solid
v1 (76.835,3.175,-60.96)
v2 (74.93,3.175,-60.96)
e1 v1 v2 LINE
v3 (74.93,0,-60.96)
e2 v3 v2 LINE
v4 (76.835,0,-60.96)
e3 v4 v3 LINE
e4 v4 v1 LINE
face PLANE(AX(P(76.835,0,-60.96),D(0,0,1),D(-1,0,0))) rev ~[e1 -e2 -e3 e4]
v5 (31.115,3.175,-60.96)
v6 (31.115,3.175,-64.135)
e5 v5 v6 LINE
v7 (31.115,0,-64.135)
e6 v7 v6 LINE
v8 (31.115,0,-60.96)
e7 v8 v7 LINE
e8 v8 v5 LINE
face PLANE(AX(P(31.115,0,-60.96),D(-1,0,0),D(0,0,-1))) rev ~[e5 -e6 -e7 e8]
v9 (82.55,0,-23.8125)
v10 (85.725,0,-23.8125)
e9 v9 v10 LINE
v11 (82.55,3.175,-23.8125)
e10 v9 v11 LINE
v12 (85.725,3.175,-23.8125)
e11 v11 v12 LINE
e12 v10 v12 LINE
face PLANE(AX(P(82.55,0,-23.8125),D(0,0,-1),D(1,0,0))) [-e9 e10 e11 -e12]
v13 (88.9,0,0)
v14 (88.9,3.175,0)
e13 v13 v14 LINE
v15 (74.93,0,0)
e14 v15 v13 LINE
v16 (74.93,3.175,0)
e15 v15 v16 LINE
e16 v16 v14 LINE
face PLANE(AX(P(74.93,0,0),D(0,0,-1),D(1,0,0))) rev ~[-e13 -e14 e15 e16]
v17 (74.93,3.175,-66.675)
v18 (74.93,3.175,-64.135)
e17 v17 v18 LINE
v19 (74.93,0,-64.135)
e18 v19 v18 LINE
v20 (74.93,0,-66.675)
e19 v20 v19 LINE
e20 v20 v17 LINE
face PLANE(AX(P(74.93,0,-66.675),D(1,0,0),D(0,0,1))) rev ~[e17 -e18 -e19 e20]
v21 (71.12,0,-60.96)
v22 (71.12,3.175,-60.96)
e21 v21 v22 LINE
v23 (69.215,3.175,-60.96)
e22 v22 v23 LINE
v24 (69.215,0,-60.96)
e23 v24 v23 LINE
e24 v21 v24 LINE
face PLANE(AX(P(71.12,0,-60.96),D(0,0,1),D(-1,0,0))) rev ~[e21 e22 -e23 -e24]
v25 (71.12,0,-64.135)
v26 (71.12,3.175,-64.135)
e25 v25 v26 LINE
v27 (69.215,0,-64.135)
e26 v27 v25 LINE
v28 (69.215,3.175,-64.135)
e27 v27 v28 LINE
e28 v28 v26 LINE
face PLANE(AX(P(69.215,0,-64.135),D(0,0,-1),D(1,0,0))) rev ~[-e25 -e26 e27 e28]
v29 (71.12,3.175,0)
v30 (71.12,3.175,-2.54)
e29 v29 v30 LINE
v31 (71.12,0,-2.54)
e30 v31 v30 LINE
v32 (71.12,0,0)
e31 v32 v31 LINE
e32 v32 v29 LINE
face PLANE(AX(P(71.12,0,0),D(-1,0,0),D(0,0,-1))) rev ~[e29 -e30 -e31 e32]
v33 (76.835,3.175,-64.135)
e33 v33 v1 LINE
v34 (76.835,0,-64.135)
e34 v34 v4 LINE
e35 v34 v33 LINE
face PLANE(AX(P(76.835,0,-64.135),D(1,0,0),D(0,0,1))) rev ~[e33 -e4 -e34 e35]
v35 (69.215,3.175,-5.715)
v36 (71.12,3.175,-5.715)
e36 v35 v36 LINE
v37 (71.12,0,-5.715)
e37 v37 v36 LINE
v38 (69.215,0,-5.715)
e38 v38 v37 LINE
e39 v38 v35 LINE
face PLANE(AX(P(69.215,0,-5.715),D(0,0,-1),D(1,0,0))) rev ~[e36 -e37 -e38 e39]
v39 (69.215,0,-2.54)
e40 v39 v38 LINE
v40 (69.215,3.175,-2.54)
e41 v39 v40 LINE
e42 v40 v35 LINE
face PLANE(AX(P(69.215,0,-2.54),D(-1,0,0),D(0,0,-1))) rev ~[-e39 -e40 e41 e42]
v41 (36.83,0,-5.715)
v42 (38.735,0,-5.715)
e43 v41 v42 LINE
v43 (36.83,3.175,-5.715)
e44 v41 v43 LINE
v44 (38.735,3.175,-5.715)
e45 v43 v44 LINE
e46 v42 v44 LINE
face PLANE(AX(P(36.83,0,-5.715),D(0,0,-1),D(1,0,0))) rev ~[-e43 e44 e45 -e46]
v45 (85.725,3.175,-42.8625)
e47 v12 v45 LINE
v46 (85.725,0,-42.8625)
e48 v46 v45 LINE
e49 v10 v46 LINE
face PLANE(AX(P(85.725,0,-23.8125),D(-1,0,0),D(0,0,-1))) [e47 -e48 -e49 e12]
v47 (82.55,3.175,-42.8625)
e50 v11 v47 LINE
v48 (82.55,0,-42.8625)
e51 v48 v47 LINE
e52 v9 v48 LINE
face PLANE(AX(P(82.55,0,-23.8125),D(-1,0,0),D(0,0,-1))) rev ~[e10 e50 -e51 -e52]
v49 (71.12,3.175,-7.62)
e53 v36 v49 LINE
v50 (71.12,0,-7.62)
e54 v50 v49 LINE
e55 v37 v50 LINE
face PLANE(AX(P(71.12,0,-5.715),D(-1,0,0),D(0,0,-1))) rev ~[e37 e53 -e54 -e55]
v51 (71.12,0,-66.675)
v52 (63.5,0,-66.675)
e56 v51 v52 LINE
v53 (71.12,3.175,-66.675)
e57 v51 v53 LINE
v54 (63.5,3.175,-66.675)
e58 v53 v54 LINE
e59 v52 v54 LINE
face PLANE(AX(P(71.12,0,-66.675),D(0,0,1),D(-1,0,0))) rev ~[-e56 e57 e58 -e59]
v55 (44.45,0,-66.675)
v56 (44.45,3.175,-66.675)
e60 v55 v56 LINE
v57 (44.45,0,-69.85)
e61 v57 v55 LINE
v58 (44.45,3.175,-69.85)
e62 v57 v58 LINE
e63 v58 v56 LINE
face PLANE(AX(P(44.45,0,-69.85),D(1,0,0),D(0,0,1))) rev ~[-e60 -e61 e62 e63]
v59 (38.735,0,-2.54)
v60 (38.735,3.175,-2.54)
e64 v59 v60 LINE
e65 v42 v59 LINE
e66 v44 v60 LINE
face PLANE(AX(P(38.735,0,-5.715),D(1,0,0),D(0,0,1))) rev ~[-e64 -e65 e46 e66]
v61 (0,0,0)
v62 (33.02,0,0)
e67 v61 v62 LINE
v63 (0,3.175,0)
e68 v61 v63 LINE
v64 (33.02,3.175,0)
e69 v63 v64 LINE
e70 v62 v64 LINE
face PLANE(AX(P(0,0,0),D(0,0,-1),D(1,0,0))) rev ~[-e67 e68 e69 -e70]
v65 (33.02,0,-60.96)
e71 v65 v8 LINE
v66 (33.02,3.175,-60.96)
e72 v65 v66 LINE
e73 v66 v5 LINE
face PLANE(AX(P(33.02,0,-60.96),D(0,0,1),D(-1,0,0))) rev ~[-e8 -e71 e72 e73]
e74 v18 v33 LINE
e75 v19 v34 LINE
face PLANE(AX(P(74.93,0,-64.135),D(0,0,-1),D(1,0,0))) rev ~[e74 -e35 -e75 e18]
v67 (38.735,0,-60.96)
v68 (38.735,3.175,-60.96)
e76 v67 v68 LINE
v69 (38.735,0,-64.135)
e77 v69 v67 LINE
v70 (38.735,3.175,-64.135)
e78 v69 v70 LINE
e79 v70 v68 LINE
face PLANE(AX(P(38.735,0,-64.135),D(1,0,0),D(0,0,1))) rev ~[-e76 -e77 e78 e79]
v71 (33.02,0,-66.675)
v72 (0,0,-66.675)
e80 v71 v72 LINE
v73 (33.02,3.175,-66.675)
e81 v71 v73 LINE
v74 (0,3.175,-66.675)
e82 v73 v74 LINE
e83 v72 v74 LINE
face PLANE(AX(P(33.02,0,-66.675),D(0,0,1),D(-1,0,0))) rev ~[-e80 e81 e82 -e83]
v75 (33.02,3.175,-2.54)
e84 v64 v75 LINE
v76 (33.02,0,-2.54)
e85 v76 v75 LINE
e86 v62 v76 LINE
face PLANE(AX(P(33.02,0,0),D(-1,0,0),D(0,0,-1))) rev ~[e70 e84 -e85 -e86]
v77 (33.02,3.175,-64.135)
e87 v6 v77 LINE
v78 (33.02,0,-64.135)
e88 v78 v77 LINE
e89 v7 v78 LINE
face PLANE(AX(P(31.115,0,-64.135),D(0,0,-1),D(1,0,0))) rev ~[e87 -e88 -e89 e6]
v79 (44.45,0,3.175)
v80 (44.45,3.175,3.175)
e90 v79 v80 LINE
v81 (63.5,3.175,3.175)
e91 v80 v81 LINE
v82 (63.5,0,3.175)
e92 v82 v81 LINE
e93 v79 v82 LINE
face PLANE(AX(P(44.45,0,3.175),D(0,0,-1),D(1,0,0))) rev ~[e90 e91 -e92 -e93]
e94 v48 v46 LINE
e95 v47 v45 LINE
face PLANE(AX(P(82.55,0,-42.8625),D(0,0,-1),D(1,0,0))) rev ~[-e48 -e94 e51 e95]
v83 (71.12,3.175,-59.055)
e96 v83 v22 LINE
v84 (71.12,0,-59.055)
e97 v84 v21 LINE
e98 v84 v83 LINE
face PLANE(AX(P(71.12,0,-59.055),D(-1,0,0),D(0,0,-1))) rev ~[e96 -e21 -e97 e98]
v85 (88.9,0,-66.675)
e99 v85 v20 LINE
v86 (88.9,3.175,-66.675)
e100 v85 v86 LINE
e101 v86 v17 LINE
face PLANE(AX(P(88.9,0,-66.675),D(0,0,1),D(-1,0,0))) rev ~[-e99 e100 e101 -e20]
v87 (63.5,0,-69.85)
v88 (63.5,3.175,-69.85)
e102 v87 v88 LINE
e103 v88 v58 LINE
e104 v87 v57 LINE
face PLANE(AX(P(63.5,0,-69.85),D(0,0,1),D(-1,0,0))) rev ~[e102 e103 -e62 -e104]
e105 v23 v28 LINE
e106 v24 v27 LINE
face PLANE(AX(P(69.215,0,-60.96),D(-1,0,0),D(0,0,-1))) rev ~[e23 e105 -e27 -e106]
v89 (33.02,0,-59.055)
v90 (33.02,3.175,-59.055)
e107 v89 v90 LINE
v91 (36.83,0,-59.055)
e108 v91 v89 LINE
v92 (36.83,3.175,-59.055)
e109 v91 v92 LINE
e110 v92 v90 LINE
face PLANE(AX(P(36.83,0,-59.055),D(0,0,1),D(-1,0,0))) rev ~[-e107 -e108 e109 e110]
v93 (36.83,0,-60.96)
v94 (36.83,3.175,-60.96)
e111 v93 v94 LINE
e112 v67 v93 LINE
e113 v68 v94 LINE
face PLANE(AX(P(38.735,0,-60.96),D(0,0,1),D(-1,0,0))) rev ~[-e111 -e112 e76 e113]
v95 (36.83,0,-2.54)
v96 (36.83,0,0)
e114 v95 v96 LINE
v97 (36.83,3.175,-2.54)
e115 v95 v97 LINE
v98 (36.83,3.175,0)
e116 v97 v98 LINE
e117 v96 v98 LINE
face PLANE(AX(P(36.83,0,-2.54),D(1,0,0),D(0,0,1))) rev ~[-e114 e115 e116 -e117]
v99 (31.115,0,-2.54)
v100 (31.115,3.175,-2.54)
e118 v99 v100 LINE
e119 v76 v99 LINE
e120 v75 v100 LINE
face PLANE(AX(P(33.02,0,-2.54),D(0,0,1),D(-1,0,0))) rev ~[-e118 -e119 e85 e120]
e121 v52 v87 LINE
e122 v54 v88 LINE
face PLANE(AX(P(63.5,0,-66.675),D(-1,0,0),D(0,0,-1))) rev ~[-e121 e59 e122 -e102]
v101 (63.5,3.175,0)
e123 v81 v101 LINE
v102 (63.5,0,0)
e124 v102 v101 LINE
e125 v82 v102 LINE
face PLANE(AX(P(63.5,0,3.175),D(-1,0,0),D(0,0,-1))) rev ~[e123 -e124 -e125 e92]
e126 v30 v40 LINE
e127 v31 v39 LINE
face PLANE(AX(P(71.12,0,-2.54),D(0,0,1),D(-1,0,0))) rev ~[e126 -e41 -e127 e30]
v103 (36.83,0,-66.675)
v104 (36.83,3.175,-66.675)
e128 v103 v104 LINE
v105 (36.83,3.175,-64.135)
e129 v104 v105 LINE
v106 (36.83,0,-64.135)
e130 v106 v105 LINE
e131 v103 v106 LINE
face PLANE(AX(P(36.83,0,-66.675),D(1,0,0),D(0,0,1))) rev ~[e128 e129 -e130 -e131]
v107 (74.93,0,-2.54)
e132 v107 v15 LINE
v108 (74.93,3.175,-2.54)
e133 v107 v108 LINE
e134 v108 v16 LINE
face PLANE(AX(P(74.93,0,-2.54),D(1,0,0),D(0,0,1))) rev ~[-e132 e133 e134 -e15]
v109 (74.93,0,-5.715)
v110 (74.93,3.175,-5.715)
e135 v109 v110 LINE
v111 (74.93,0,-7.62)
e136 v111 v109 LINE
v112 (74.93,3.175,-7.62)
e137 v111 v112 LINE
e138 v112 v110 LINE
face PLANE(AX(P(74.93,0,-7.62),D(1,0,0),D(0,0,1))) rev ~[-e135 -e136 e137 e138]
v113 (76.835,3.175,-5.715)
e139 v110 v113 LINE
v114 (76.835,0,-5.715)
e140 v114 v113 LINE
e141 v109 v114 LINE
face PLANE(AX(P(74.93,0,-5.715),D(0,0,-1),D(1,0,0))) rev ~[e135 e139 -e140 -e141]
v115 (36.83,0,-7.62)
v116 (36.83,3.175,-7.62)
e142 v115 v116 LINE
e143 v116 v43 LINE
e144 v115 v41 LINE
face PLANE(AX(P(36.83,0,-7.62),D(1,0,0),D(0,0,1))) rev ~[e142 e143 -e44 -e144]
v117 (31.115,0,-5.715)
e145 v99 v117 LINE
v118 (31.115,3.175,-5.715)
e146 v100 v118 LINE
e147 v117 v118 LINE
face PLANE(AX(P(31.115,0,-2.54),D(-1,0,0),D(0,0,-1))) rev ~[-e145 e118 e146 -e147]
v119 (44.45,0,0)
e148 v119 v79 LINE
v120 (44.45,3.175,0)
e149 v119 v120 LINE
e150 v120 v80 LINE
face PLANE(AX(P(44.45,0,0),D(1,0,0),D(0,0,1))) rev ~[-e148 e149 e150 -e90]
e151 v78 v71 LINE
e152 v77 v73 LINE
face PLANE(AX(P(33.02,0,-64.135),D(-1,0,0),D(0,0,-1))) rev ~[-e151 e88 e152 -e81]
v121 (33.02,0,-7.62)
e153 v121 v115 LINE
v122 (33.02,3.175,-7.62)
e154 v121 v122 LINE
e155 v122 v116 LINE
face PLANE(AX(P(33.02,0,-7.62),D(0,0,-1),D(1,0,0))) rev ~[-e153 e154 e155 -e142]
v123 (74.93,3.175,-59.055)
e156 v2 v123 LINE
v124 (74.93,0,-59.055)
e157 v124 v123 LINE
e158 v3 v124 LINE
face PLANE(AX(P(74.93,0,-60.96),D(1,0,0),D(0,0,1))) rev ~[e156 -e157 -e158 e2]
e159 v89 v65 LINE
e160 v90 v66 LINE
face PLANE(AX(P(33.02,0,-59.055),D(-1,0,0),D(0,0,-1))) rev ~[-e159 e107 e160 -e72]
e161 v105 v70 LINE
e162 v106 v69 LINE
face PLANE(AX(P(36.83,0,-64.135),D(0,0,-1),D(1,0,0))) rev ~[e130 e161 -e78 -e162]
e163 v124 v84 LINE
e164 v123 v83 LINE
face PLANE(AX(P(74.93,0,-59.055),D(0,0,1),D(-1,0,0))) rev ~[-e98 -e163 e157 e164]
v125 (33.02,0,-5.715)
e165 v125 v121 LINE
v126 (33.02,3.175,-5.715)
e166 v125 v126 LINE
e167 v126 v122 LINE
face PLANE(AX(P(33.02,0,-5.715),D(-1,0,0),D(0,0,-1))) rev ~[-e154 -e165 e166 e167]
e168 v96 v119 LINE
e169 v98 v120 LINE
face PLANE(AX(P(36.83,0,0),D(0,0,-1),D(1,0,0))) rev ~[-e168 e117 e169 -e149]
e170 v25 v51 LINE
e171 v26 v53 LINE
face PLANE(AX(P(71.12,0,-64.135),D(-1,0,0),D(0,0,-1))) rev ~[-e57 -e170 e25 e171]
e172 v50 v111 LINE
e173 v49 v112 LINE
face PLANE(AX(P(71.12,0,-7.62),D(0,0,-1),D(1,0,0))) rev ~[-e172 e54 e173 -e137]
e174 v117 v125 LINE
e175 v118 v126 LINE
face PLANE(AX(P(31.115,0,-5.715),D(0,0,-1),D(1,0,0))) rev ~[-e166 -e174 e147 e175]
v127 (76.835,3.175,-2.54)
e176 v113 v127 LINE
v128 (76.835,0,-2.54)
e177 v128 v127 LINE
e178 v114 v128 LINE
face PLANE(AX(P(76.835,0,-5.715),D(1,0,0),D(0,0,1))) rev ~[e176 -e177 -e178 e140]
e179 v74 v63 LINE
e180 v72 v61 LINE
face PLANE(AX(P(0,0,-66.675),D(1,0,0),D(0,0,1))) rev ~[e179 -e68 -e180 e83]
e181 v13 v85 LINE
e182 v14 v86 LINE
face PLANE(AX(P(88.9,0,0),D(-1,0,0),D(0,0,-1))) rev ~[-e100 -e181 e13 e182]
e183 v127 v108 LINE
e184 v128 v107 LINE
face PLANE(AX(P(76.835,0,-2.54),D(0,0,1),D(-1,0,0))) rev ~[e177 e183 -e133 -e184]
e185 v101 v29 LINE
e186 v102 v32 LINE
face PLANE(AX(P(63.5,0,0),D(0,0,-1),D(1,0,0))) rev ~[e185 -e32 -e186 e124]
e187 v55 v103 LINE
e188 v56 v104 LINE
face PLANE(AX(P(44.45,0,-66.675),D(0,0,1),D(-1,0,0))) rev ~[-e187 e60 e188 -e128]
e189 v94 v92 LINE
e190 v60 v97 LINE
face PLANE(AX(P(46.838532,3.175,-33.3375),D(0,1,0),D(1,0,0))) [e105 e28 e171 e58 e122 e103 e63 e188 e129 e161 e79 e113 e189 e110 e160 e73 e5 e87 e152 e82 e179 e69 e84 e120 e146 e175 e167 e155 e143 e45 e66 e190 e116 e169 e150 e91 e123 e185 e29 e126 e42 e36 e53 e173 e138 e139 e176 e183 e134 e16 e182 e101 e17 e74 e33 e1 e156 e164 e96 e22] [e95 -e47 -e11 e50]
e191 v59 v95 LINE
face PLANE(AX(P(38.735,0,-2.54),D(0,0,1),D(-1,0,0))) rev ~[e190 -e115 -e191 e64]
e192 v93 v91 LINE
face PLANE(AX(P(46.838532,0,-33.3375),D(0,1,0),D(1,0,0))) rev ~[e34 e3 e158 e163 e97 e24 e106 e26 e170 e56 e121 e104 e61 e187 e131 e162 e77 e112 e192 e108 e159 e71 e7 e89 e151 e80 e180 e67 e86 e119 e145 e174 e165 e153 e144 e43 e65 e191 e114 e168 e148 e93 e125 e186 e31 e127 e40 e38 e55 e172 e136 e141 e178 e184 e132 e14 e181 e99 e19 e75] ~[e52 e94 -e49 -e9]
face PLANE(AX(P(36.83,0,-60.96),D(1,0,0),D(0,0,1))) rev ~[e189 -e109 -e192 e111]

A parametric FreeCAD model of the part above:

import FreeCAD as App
import Part
import Sketcher
Q = App.Units.Quantity


def add_polygon(sketch, points):
    """Adds a closed chain of lines whose ends are joined by coincident constraints."""
    first, n = sketch.GeometryCount, len(points)
    for a, b in zip(points, points[1:] + points[:1]):
        sketch.addGeometry(Part.LineSegment(App.Vector(*a, 0), App.Vector(*b, 0)), False)
    for i in range(n):
        sketch.addConstraint(Sketcher.Constraint("Coincident", first + i, 2, first + (i + 1) % n, 1))

doc = App.newDocument("Part")
body = doc.addObject("PartDesign::Body", "Body")

sketch1 = body.newObject("Sketcher::SketchObject", "Sketch")
sketch1.AttachmentSupport = (doc.getObject("XZ_Plane"), [""])
sketch1.MapMode = "FlatFace"
add_polygon(sketch1, [(0, -66.7), (0, 0), (33, 0), (33, -2.5), (31.1, -2.5), (31.1, -5.7), (33, -5.7), (33, -7.6), (36.8, -7.6), (36.8, -5.7), (38.7, -5.7), (38.7, -2.5), (36.8, -2.5), (36.8, 0), (44.5, 0), (44.5, 3.2), (63.5, 3.2), (63.5, 0), (71.1, 0), (71.1, -2.5), (69.2, -2.5), (69.2, -5.7), (71.1, -5.7), (71.1, -7.6), (74.9, -7.6), (74.9, -5.7), (76.8, -5.7), (76.8, -2.5), (74.9, -2.5), (74.9, 0), (88.9, 0), (88.9, -66.7), (74.9, -66.7), (74.9, -64.1), (76.8, -64.1), (76.8, -61), (74.9, -61), (74.9, -59.1), (71.1, -59.1), (71.1, -61), (69.2, -61), (69.2, -64.1), (71.1, -64.1), (71.1, -66.7), (63.5, -66.7), (63.5, -69.8), (44.5, -69.8), (44.5, -66.7), (36.8, -66.7), (36.8, -64.1), (38.7, -64.1), (38.7, -61), (36.8, -61), (36.8, -59.1), (33, -59.1), (33, -61), (31.1, -61), (31.1, -64.1), (33, -64.1), (33, -66.7)])
add_polygon(sketch1, [(85.7, -23.8), (82.5, -23.8), (82.5, -42.9), (85.7, -42.9)])
sketch1.addConstraint([
    Sketcher.Constraint("Vertical", 0),
    Sketcher.Constraint("Horizontal", 1),
    Sketcher.Constraint("Vertical", 2),
    Sketcher.Constraint("Horizontal", 3),
    Sketcher.Constraint("Vertical", 4),
    Sketcher.Constraint("Horizontal", 5),
    Sketcher.Constraint("Vertical", 6),
    Sketcher.Constraint("Horizontal", 7),
    Sketcher.Constraint("Vertical", 8),
    Sketcher.Constraint("Horizontal", 9),
    Sketcher.Constraint("Vertical", 10),
    Sketcher.Constraint("Horizontal", 11),
    Sketcher.Constraint("Vertical", 12),
    Sketcher.Constraint("Horizontal", 13),
    Sketcher.Constraint("Vertical", 14),
    Sketcher.Constraint("Horizontal", 15),
    Sketcher.Constraint("Vertical", 16),
    Sketcher.Constraint("Horizontal", 17),
    Sketcher.Constraint("Vertical", 18),
    Sketcher.Constraint("Horizontal", 19),
    Sketcher.Constraint("Vertical", 20),
    Sketcher.Constraint("Horizontal", 21),
    Sketcher.Constraint("Vertical", 22),
    Sketcher.Constraint("Horizontal", 23),
    Sketcher.Constraint("Vertical", 24),
    Sketcher.Constraint("Horizontal", 25),
    Sketcher.Constraint("Vertical", 26),
    Sketcher.Constraint("Horizontal", 27),
    Sketcher.Constraint("Vertical", 28),
    Sketcher.Constraint("Horizontal", 29),
    Sketcher.Constraint("Vertical", 30),
    Sketcher.Constraint("Horizontal", 31),
    Sketcher.Constraint("Vertical", 32),
    Sketcher.Constraint("Horizontal", 33),
    Sketcher.Constraint("Vertical", 34),
    Sketcher.Constraint("Horizontal", 35),
    Sketcher.Constraint("Vertical", 36),
    Sketcher.Constraint("Horizontal", 37),
    Sketcher.Constraint("Vertical", 38),
    Sketcher.Constraint("Horizontal", 39),
    Sketcher.Constraint("Vertical", 40),
    Sketcher.Constraint("Horizontal", 41),
    Sketcher.Constraint("Vertical", 42),
    Sketcher.Constraint("Horizontal", 43),
    Sketcher.Constraint("Vertical", 44),
    Sketcher.Constraint("Horizontal", 45),
    Sketcher.Constraint("Vertical", 46),
    Sketcher.Constraint("Horizontal", 47),
    Sketcher.Constraint("Vertical", 48),
    Sketcher.Constraint("Horizontal", 49),
    Sketcher.Constraint("Vertical", 50),
    Sketcher.Constraint("Horizontal", 51),
    Sketcher.Constraint("Vertical", 52),
    Sketcher.Constraint("Horizontal", 53),
    Sketcher.Constraint("Vertical", 54),
    Sketcher.Constraint("Horizontal", 55),
    Sketcher.Constraint("Vertical", 56),
    Sketcher.Constraint("Horizontal", 57),
    Sketcher.Constraint("Vertical", 58),
    Sketcher.Constraint("Horizontal", 59),
    Sketcher.Constraint("Horizontal", 60),
    Sketcher.Constraint("Vertical", 61),
    Sketcher.Constraint("Horizontal", 62),
    Sketcher.Constraint("Vertical", 63),
    Sketcher.Constraint("Coincident", 0, 2, -1, 1),
    Sketcher.Constraint("PointOnObject", 12, 2, -1),
    Sketcher.Constraint("PointOnObject", 16, 2, -1),
    Sketcher.Constraint("PointOnObject", 28, 2, -1),
    Sketcher.Constraint("Horizontal", 5, 2, 8, 2),
    Sketcher.Constraint("Horizontal", 3, 2, 10, 2),
    Sketcher.Constraint("Horizontal", 11, 2, 18, 2),
    Sketcher.Constraint("Horizontal", 9, 2, 20, 2),
    Sketcher.Constraint("Horizontal", 7, 2, 22, 2),
    Sketcher.Constraint("Horizontal", 21, 2, 24, 2),
    Sketcher.Constraint("Horizontal", 19, 2, 26, 2),
    Sketcher.Constraint("Horizontal", 35, 2, 38, 2),
    Sketcher.Constraint("Horizontal", 33, 2, 40, 2),
    Sketcher.Constraint("Horizontal", 31, 2, 42, 2),
    Sketcher.Constraint("Horizontal", 43, 2, 46, 2),
    Sketcher.Constraint("Horizontal", 41, 2, 48, 2),
    Sketcher.Constraint("Horizontal", 39, 2, 50, 2),
    Sketcher.Constraint("Horizontal", 37, 2, 52, 2),
    Sketcher.Constraint("Horizontal", 51, 2, 54, 2),
    Sketcher.Constraint("Horizontal", 49, 2, 56, 2),
    Sketcher.Constraint("Horizontal", 47, 2, 58, 2),
    Sketcher.Constraint("Vertical", 2, 2, 5, 2),
    Sketcher.Constraint("Vertical", 8, 2, 11, 2),
    Sketcher.Constraint("Vertical", 18, 2, 21, 2),
    Sketcher.Constraint("Vertical", 24, 2, 27, 2),
    Sketcher.Constraint("Vertical", 28, 2, 31, 2),
    Sketcher.Constraint("Vertical", 26, 2, 33, 2),
    Sketcher.Constraint("Vertical", 32, 2, 35, 2),
    Sketcher.Constraint("Vertical", 22, 2, 37, 2),
    Sketcher.Constraint("Vertical", 20, 2, 39, 2),
    Sketcher.Constraint("Vertical", 38, 2, 41, 2),
    Sketcher.Constraint("Vertical", 16, 2, 43, 2),
    Sketcher.Constraint("Vertical", 14, 2, 45, 2),
    Sketcher.Constraint("Vertical", 12, 2, 47, 2),
    Sketcher.Constraint("Vertical", 10, 2, 49, 2),
    Sketcher.Constraint("Vertical", 48, 2, 51, 2),
    Sketcher.Constraint("Vertical", 6, 2, 53, 2),
    Sketcher.Constraint("Vertical", 4, 2, 55, 2),
    Sketcher.Constraint("Vertical", 54, 2, 57, 2),
    Sketcher.Constraint("Equal", 5, 9),
    Sketcher.Constraint("Equal", 13, 17),
    Sketcher.Constraint("Equal", 11, 19),
    Sketcher.Constraint("Equal", 7, 23),
    Sketcher.Constraint("Equal", 21, 25),
    Sketcher.Constraint("Equal", 62, 4),
    Sketcher.Constraint("Equal", 57, 6),
    Sketcher.Constraint("Equal", 10, 14),
    Sketcher.Constraint("Equal", 28, 32),
    Sketcher.Constraint("Equal", 26, 34),
    Sketcher.Constraint("Equal", 24, 36),
    Sketcher.Constraint("Equal", 40, 44),
    Sketcher.Constraint("Equal", 45, 61),
    Sketcher.Constraint("DistanceX", 1, 1, 1, 2, Q("1.3 in")),
    Sketcher.Constraint("DistanceX", 13, 1, 13, 2, Q("0.3 in")),
    Sketcher.Constraint("DistanceY", 2, 2, 2, 1, Q("0.1 in")),
    Sketcher.Constraint("DistanceX", 7, 1, 7, 2, Q("0.15 in")),
    Sketcher.Constraint("DistanceX", 15, 1, 15, 2, Q("0.75 in")),
    Sketcher.Constraint("DistanceX", 29, 1, 29, 2, Q("0.55 in")),
    Sketcher.Constraint("DistanceY", 6, 2, -1, 1, Q("0.3 in")),
    Sketcher.Constraint("DistanceY", 34, 2, -1, 1, Q("2.4 in")),
    Sketcher.Constraint("DistanceX", 3, 2, 3, 1, Q("0.075 in")),
    Sketcher.Constraint("DistanceX", -1, 1, 60, 2, Q("3.25 in")),
    Sketcher.Constraint("DistanceY", 60, 2, -1, 1, Q("0.9375 in")),
])
pad1 = body.newObject("PartDesign::Pad", "Pad")
pad1.Profile = sketch1
pad1.Length = Q("0.125 in")
pad1.Reversed = True

doc.recompute()
